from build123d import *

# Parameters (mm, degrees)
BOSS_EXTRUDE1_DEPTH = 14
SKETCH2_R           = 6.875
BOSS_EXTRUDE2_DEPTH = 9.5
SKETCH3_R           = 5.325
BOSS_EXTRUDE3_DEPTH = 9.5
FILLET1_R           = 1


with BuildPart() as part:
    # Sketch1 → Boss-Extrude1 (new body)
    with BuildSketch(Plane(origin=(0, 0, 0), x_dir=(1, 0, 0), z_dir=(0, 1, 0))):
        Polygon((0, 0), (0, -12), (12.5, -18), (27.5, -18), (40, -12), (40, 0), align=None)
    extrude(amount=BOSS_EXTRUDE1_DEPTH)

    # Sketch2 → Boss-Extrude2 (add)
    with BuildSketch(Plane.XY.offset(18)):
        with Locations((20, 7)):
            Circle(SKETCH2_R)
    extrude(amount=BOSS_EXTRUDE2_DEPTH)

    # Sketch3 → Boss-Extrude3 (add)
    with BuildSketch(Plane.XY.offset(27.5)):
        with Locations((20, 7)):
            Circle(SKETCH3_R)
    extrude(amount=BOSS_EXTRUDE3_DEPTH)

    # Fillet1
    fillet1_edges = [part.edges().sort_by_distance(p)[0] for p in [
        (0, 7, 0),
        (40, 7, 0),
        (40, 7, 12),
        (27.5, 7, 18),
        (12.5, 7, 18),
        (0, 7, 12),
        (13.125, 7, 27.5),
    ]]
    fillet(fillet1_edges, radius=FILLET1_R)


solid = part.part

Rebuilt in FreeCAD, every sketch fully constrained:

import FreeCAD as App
import Part
import Sketcher
Q = App.Units.Quantity


def edges_at(feature, points):
    """Names of the edges that pass closest to the given points."""
    edges = feature.Shape.Edges
    near = lambda p: min(range(len(edges)), key=lambda i: edges[i].distToShape(Part.Vertex(*p))[0])
    return sorted({f"Edge{near(p) + 1}" for p in points})

doc = App.newDocument("Part")
body = doc.addObject("PartDesign::Body", "Body")

# Sketch on XZ plane
sketch1 = body.newObject("Sketcher::SketchObject", "Sketch")
sketch1.AttachmentSupport = (doc.getObject("XZ_Plane"), [""])
sketch1.MapMode = "FlatFace"
sketch1.addGeometry([
    Part.LineSegment(App.Vector(0, 0, 0), App.Vector(0, 12, 0)),  # 0
    Part.LineSegment(App.Vector(0, 12, 0), App.Vector(12.5, 18, 0)),  # 1
    Part.LineSegment(App.Vector(12.5, 18, 0), App.Vector(27.5, 18, 0)),  # 2
    Part.LineSegment(App.Vector(27.5, 18, 0), App.Vector(40, 12, 0)),  # 3
    Part.LineSegment(App.Vector(40, 12, 0), App.Vector(40, 0, 0)),  # 4
    Part.LineSegment(App.Vector(40, 0, 0), App.Vector(0, 0, 0)),  # 5
], False)
sketch1.addConstraint([
    Sketcher.Constraint("Coincident", 0, 2, 1, 1),
    Sketcher.Constraint("Coincident", 1, 2, 2, 1),
    Sketcher.Constraint("Coincident", 2, 2, 3, 1),
    Sketcher.Constraint("Coincident", 3, 2, 4, 1),
    Sketcher.Constraint("Coincident", 4, 2, 5, 1),
    Sketcher.Constraint("Coincident", 5, 2, 0, 1),
    Sketcher.Constraint("Vertical", 0),
    Sketcher.Constraint("Horizontal", 2),
    Sketcher.Constraint("Vertical", 4),
    Sketcher.Constraint("Horizontal", 5),
    Sketcher.Constraint("Coincident", 5, 2, -1, 1),
    Sketcher.Constraint("Horizontal", 0, 2, 3, 2),
    Sketcher.Constraint("Equal", 1, 3),
    Sketcher.Constraint("DistanceX", 2, 1, 2, 2, Q("15 mm")),
    Sketcher.Constraint("DistanceX", 5, 2, 5, 1, Q("40 mm")),
    Sketcher.Constraint("DistanceY", 0, 1, 0, 2, Q("12 mm")),
    Sketcher.Constraint("DistanceY", -1, 1, 1, 2, Q("18 mm")),
])
pad1 = body.newObject("PartDesign::Pad", "Pad")
pad1.Profile = sketch1
pad1.Length = 14
pad1.Reversed = True

# Sketch on XY plane
sketch2 = body.newObject("Sketcher::SketchObject", "Sketch001")
sketch2.AttachmentSupport = (doc.getObject("XY_Plane"), [""])
sketch2.MapMode = "FlatFace"
sketch2.AttachmentOffset = App.Placement(App.Vector(0, 0, 18), App.Rotation())
sketch2.addGeometry(Part.Circle(App.Vector(20, 7, 0), App.Vector(0, 0, 1), 6.875), False)
sketch2.addConstraint([
    Sketcher.Constraint("Diameter", 0, Q("13.75 mm")),
    Sketcher.Constraint("DistanceX", -1, 1, 0, 3, Q("20 mm")),
    Sketcher.Constraint("DistanceY", -1, 1, 0, 3, Q("7 mm")),
])
pad2 = body.newObject("PartDesign::Pad", "Pad001")
pad2.Profile = sketch2
pad2.Length = 9.5

# Sketch on XY plane
sketch3 = body.newObject("Sketcher::SketchObject", "Sketch002")
sketch3.AttachmentSupport = (doc.getObject("XY_Plane"), [""])
sketch3.MapMode = "FlatFace"
sketch3.AttachmentOffset = App.Placement(App.Vector(0, 0, 27.5), App.Rotation())
sketch3.addGeometry(Part.Circle(App.Vector(20, 7, 0), App.Vector(0, 0, 1), 5.325), False)
sketch3.addConstraint([
    Sketcher.Constraint("Diameter", 0, Q("10.65 mm")),
    Sketcher.Constraint("DistanceX", -1, 1, 0, 3, Q("20 mm")),
    Sketcher.Constraint("DistanceY", -1, 1, 0, 3, Q("7 mm")),
])
pad3 = body.newObject("PartDesign::Pad", "Pad002")
pad3.Profile = sketch3
pad3.Length = 9.5
doc.recompute()

fillet = body.newObject("PartDesign::Fillet", "Fillet")
fillet.Base = (pad3, edges_at(pad3, [
    (0, 7, 0),
    (40, 7, 0),
    (40, 7, 12),
    (27.5, 7, 18),
    (12.5, 7, 18),
    (0, 7, 12),
    (13.125, 7, 27.5),
]))
fillet.Radius = 1

doc.recompute()
